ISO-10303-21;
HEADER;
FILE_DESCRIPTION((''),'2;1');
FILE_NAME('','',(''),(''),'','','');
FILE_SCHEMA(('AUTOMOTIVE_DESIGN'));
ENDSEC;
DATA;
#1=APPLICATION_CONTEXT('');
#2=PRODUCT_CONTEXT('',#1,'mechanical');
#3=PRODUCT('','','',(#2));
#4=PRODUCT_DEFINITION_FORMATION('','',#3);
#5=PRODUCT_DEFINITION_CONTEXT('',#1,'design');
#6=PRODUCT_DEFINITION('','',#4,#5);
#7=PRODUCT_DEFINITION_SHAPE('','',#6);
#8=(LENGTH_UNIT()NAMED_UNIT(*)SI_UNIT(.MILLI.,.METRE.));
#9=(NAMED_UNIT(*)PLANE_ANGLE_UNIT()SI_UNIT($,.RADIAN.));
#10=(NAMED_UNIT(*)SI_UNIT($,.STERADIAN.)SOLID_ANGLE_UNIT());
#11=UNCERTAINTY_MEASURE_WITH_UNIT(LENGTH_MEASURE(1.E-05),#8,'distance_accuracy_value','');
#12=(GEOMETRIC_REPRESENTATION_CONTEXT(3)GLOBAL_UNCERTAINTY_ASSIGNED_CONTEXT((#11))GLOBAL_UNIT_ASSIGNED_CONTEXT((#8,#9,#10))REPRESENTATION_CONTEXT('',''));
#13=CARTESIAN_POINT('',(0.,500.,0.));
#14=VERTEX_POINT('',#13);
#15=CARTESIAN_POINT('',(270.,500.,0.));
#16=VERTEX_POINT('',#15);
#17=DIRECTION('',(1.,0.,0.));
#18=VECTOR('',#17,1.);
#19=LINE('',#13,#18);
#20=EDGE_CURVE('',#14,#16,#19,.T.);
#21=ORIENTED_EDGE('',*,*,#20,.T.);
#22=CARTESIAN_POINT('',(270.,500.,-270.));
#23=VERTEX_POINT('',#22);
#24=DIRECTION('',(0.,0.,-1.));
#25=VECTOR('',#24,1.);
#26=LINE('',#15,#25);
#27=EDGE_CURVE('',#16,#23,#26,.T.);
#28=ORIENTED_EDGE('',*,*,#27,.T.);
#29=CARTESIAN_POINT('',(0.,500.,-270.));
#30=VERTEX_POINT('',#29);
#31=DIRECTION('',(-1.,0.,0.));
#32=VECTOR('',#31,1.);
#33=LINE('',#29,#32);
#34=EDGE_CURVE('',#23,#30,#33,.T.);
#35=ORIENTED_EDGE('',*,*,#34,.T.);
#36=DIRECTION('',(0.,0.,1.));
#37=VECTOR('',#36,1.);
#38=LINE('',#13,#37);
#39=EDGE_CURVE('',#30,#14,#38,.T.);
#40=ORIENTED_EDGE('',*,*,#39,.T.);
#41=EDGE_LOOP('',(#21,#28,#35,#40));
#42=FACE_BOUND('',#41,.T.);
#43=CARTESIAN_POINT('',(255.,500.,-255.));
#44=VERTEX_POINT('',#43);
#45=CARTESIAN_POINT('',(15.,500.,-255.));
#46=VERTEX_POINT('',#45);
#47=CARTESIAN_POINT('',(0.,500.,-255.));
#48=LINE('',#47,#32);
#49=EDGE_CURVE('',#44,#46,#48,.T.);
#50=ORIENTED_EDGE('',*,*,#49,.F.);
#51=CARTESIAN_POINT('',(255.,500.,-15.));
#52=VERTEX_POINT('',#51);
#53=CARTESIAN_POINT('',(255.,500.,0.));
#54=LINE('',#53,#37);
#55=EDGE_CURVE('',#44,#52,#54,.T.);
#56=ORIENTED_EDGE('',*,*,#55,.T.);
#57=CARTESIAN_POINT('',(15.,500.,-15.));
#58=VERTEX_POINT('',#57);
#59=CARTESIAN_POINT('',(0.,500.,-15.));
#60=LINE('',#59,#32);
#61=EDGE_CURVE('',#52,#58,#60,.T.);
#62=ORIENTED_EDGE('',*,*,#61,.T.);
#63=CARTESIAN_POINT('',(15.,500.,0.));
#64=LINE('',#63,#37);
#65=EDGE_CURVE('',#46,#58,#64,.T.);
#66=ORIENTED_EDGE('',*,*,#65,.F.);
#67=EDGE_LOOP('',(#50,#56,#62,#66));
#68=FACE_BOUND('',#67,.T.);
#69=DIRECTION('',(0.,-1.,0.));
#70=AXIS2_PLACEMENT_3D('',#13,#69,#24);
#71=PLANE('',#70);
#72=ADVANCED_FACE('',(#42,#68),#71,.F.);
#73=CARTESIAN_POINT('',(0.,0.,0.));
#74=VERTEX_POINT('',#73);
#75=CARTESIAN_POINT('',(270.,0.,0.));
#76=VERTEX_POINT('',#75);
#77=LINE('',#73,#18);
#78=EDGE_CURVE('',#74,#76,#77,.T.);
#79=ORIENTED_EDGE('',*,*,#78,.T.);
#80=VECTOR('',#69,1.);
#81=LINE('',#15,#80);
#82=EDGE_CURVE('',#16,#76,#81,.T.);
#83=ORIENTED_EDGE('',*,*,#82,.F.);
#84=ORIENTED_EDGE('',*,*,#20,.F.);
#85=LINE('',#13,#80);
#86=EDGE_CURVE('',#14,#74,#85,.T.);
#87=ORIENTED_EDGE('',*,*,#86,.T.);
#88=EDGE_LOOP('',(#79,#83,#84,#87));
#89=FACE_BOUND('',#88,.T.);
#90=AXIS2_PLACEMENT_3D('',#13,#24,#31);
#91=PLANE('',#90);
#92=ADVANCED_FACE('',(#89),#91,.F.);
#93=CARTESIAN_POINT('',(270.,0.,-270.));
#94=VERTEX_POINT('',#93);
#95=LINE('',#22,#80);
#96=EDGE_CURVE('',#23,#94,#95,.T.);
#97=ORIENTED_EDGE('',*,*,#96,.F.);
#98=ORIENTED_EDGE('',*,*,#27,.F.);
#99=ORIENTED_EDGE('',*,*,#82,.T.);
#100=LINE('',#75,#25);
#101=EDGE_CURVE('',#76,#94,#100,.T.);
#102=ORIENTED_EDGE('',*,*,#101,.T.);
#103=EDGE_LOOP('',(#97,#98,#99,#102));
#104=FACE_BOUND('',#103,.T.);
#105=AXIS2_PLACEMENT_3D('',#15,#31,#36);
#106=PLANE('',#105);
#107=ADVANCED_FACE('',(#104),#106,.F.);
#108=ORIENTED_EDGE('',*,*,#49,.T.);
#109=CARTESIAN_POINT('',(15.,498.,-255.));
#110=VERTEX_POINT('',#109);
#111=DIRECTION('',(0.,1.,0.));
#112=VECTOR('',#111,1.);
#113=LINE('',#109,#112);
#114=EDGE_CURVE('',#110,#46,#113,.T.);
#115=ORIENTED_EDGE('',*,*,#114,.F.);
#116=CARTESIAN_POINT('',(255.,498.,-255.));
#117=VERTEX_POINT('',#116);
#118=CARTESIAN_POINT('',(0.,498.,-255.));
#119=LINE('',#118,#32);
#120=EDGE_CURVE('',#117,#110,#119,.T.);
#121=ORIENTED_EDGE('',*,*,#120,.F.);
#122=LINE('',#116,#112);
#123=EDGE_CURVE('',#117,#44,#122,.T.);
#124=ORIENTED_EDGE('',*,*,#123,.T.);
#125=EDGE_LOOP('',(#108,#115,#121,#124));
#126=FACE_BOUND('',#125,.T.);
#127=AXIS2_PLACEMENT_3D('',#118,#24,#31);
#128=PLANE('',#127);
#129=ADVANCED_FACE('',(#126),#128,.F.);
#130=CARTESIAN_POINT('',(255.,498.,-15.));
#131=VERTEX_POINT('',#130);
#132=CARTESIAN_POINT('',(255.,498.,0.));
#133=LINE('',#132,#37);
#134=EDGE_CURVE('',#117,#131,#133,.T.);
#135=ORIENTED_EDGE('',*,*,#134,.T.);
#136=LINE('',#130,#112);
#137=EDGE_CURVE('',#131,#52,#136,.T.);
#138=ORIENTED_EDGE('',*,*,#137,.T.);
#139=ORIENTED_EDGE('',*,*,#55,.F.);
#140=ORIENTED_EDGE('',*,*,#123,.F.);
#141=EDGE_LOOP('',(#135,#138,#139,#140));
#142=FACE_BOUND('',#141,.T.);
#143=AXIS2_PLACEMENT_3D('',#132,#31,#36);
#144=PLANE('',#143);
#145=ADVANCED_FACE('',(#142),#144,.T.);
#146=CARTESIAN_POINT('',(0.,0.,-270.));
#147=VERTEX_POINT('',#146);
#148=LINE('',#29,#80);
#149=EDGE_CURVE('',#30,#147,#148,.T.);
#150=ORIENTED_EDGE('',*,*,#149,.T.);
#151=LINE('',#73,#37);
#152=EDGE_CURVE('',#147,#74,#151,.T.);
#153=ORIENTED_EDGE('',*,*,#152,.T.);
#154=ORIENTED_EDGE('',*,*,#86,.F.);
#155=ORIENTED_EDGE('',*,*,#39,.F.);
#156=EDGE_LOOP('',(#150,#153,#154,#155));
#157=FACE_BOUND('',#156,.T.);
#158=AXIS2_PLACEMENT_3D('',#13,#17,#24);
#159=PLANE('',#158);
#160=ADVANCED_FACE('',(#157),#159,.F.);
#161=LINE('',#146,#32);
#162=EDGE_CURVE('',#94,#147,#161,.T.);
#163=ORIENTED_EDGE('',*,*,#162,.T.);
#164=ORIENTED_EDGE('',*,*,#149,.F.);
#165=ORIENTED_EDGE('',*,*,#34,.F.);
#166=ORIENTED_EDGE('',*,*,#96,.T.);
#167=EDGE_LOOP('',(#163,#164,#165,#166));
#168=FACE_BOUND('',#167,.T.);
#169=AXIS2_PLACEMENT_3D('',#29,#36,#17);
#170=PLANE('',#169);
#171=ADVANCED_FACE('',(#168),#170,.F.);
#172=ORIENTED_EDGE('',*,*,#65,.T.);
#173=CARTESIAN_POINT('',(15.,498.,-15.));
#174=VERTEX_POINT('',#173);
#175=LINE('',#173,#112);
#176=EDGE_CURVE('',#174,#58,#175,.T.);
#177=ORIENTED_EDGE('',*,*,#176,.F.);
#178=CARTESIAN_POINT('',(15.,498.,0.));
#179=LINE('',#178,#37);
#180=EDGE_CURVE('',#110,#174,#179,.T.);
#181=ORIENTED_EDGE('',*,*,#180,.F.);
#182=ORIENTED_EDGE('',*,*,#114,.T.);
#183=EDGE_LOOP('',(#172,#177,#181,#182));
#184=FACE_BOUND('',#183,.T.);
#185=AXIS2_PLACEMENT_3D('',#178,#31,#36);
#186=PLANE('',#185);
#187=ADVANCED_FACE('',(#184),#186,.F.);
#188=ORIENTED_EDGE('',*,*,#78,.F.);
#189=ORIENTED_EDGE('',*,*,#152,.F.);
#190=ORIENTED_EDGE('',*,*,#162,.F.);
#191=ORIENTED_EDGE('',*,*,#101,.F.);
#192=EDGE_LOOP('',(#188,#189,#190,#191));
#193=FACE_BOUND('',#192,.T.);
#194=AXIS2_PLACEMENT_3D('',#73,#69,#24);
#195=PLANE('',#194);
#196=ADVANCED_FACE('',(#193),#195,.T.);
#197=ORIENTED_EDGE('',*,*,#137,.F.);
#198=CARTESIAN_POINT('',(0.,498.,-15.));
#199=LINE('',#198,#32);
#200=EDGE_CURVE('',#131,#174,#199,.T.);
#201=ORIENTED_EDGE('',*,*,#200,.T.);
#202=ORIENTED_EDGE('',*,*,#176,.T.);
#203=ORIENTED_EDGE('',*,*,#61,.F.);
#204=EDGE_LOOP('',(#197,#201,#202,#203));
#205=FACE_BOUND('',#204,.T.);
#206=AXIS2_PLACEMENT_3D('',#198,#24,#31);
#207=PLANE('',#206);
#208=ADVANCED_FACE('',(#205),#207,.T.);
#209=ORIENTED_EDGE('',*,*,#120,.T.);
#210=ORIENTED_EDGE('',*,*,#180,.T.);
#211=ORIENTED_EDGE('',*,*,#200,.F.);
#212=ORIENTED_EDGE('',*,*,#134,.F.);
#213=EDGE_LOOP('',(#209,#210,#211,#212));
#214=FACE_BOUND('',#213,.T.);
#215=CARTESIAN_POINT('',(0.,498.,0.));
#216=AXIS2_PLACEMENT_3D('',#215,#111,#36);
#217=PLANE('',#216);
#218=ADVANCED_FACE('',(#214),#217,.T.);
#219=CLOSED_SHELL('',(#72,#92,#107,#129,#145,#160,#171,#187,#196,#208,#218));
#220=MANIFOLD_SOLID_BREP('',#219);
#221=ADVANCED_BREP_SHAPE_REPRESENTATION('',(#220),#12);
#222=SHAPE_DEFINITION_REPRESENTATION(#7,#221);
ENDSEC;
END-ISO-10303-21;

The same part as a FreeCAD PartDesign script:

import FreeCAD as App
import Part
import Sketcher

V = App.Vector


def add_polygon(sketch, points):
    """Adds a closed chain of lines whose ends are joined by coincident constraints."""
    first, n = sketch.GeometryCount, len(points)
    for a, b in zip(points, points[1:] + points[:1]):
        sketch.addGeometry(Part.LineSegment(App.Vector(*a, 0), App.Vector(*b, 0)), False)
    for i in range(n):
        sketch.addConstraint(Sketcher.Constraint("Coincident", first + i, 2, first + (i + 1) % n, 1))

doc = App.newDocument("Part")
body = doc.addObject("PartDesign::Body", "Body")

sketch1 = body.newObject("Sketcher::SketchObject", "Sketch")
sketch1.AttachmentSupport = (doc.getObject("XZ_Plane"), [""])
sketch1.MapMode = "FlatFace"
add_polygon(sketch1, [(0, -270), (0, 0), (270, 0), (270, -270)])
sketch1.addConstraint(Sketcher.Constraint("Vertical", 0))
sketch1.addConstraint(Sketcher.Constraint("Horizontal", 1))
sketch1.addConstraint(Sketcher.Constraint("Vertical", 2))
sketch1.addConstraint(Sketcher.Constraint("Horizontal", 3))
sketch1.addConstraint(Sketcher.Constraint("Coincident", 0, 2, -1, 1))
sketch1.addConstraint(Sketcher.Constraint("Equal", 3, 0))
sketch1.addConstraint(Sketcher.Constraint("DistanceX", 1, 1, 1, 2, 270.0))
pad1 = body.newObject("PartDesign::Pad", "Pad")
pad1.Profile = sketch1
pad1.Length = 500
pad1.Reversed = True

sketch2 = body.newObject("Sketcher::SketchObject", "Sketch001")
sketch2.AttachmentSupport = (doc.getObject("XZ_Plane"), [""])
sketch2.MapMode = "FlatFace"
sketch2.AttachmentOffset = App.Placement(V(0, 0, -500), App.Rotation())
add_polygon(sketch2, [(15, -255), (15, -15), (255, -15), (255, -255)])
sketch2.addConstraint(Sketcher.Constraint("Vertical", 0))
sketch2.addConstraint(Sketcher.Constraint("Horizontal", 1))
sketch2.addConstraint(Sketcher.Constraint("Vertical", 2))
sketch2.addConstraint(Sketcher.Constraint("Horizontal", 3))
sketch2.addConstraint(Sketcher.Constraint("Equal", 3, 0))
sketch2.addConstraint(Sketcher.Constraint("DistanceX", 1, 1, 1, 2, 240.0))
sketch2.addConstraint(Sketcher.Constraint("DistanceX", -1, 1, 0, 2, 15.0))
sketch2.addConstraint(Sketcher.Constraint("DistanceY", 0, 2, -1, 1, 15.0))
pocket1 = body.newObject("PartDesign::Pocket", "Pocket")
pocket1.Profile = sketch2
pocket1.Length = 2
pocket1.Reversed = True

doc.recompute()
